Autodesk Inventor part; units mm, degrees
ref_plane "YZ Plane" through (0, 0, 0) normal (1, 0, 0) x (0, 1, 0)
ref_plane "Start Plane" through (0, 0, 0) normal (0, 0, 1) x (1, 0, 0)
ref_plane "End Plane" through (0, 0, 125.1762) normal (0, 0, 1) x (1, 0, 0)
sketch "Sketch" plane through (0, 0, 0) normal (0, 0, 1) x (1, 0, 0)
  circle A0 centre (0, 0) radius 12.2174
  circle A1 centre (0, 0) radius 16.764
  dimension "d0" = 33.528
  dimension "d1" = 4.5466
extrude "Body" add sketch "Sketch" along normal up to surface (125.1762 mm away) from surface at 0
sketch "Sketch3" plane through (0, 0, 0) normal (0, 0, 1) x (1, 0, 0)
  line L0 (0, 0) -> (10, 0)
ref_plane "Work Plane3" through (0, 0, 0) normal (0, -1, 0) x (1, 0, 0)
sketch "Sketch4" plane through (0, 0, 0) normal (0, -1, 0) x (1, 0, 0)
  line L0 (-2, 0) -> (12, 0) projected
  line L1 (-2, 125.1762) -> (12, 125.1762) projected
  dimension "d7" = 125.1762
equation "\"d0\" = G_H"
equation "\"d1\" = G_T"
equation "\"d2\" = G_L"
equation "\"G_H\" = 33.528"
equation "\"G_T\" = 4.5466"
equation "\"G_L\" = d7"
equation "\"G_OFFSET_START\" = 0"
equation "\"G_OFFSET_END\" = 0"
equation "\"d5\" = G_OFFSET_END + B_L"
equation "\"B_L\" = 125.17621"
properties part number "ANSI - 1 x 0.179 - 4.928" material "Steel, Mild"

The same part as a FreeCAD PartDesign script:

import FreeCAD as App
import Part
import Sketcher

V = App.Vector
Q = App.Units.Quantity

doc = App.newDocument("Part")
body = doc.addObject("PartDesign::Body", "Body")

# Sketch on XY plane
sketch1 = body.newObject("Sketcher::SketchObject", "Sketch")
sketch1.AttachmentSupport = (doc.getObject("XY_Plane"), [""])
sketch1.MapMode = "FlatFace"
sketch1.addGeometry([
    Part.Circle(V(0, 0, 0), V(0, 0, 1), 16.764),
    Part.Circle(V(0, 0, 0), V(0, 0, 1), 12.2174),
], False)
sketch1.addConstraint([
    Sketcher.Constraint("Coincident", 0, 3, -1, 1),
    Sketcher.Constraint("Coincident", 1, 3, -1, 1),
    Sketcher.Constraint("Diameter", 0, Q("1.32 in")),
    Sketcher.Constraint("Diameter", 1, Q("0.962 in")),
])
pad1 = body.newObject("PartDesign::Pad", "Pad")
pad1.Profile = sketch1
pad1.Length = Q("4.9281969 in")

doc.recompute()
